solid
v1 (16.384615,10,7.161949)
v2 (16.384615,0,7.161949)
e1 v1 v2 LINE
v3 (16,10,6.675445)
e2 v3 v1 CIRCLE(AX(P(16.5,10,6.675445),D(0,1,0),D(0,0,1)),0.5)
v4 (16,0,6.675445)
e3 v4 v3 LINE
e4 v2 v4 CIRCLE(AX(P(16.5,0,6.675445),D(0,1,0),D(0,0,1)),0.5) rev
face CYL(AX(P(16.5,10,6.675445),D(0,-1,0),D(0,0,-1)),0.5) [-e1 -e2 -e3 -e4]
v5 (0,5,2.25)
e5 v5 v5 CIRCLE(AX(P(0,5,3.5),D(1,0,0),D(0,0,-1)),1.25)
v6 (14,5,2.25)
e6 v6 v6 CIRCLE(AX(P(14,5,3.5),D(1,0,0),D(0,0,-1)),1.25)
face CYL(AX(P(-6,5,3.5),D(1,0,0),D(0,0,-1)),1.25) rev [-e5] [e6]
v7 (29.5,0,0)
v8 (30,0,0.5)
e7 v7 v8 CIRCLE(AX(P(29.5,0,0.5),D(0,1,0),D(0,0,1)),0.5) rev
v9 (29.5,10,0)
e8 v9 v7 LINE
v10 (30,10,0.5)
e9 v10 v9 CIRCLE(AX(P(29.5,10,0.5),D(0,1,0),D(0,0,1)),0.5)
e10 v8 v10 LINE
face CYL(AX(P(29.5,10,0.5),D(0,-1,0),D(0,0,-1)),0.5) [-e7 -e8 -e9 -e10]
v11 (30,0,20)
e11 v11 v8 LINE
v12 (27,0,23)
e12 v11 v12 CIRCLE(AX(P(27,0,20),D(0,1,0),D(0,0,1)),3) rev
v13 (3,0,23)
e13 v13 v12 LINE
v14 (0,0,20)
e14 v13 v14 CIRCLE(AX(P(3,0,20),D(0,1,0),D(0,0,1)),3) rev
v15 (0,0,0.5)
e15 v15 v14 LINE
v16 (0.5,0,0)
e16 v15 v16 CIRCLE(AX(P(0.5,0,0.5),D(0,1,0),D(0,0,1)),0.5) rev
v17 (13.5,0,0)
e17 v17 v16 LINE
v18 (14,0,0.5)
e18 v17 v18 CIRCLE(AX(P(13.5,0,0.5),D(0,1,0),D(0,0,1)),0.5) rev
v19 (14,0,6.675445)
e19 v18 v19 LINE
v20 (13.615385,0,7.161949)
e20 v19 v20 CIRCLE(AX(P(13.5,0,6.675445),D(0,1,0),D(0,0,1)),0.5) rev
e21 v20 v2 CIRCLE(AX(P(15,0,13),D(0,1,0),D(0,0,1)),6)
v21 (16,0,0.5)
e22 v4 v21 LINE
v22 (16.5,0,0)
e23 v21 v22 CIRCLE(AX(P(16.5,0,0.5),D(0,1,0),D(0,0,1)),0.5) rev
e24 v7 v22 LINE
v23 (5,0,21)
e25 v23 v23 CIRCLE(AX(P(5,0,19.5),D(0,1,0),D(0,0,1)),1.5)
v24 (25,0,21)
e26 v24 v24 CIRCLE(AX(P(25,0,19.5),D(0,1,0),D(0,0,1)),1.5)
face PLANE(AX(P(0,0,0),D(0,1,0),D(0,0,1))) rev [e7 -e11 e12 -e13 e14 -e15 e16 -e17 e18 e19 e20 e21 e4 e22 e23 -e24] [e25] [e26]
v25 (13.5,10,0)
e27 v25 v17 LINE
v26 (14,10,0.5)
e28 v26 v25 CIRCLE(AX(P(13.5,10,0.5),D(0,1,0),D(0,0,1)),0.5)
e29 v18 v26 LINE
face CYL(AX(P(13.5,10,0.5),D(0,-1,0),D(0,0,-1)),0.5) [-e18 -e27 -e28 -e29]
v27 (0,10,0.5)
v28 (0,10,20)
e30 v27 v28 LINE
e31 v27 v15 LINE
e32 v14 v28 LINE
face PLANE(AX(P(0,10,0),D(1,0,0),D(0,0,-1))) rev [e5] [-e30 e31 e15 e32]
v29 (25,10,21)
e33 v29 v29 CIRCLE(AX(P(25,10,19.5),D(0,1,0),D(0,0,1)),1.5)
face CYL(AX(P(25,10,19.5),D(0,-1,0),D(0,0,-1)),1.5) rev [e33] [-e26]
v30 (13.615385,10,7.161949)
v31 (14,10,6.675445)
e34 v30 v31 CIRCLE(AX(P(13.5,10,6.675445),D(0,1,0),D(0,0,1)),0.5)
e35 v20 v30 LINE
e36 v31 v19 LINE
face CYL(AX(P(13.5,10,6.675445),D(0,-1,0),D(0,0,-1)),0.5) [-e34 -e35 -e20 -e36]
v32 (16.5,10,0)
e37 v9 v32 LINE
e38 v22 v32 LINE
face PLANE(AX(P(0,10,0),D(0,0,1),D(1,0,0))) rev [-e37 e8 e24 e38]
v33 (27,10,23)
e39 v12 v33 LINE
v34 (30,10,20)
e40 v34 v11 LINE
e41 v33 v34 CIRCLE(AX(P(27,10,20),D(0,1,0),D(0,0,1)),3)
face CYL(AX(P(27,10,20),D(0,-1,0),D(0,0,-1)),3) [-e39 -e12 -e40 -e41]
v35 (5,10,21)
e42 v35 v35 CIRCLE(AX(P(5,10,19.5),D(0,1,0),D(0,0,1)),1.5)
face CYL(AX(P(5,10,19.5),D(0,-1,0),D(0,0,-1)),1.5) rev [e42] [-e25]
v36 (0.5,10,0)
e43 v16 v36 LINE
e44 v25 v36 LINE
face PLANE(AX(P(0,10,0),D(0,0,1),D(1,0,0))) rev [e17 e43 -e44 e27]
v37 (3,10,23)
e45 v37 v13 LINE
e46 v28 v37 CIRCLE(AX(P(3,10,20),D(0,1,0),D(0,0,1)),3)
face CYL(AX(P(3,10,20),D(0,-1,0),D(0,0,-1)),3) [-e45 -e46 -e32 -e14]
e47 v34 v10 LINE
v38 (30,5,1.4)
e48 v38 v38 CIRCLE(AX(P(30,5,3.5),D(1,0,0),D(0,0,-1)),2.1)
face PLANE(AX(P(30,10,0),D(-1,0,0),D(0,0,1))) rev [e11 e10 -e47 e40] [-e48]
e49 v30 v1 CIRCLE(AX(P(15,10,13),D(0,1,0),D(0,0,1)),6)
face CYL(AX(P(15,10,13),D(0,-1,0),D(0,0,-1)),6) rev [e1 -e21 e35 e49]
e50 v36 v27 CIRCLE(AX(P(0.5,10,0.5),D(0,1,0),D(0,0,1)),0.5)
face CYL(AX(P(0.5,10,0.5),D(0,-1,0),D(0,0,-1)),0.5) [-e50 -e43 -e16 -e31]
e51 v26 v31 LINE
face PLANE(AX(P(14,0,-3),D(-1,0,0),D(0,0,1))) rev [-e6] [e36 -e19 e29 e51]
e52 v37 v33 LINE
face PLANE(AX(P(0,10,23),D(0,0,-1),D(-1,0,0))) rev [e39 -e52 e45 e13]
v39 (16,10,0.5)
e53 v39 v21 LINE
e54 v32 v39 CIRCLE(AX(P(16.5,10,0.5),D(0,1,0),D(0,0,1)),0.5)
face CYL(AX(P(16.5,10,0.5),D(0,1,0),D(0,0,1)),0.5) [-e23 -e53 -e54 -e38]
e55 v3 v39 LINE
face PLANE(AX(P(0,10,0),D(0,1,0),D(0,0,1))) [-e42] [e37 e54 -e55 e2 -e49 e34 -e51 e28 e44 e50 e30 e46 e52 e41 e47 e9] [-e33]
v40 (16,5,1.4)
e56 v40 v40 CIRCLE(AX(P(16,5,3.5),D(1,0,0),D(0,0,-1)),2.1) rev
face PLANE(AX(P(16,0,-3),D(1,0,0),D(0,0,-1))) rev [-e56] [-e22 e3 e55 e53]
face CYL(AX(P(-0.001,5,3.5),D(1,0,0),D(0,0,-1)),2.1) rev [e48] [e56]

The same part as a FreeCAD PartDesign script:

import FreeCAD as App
import Part
import Sketcher

V = App.Vector
Q = App.Units.Quantity


def edges_at(feature, points):
    """Names of the edges that pass closest to the given points."""
    edges = feature.Shape.Edges
    near = lambda p: min(range(len(edges)), key=lambda i: edges[i].distToShape(Part.Vertex(*p))[0])
    return sorted({f"Edge{near(p) + 1}" for p in points})

doc = App.newDocument("Part")
body = doc.addObject("PartDesign::Body", "Body")

sketch1 = doc.addObject("Sketcher::SketchObject", "Sketch")
body.addObject(sketch1)
sketch1.AttachmentSupport = (doc.XZ_Plane, [""])
sketch1.MapMode = "FlatFace"
sketch1.addGeometry([
    Part.LineSegment(V(0, 0, 0), V(0, 23, 0)),
    Part.LineSegment(V(0, 23, 0), V(30, 23, 0)),
    Part.LineSegment(V(30, 23, 0), V(30, 0, 0)),
    Part.LineSegment(V(30, 0, 0), V(0, 0, 0)),
    Part.Circle(V(5, 19.5, 0), V(0, 0, 1), 1.5),
    Part.Circle(V(25, 19.5, 0), V(0, 0, 1), 1.5),
    Part.Circle(V(15, 13, 0), V(0, 0, 1), 6),
], False)
sketch1.addConstraint([
    Sketcher.Constraint("Coincident", 0, 2, 1, 1),
    Sketcher.Constraint("Coincident", 1, 2, 2, 1),
    Sketcher.Constraint("Coincident", 2, 2, 3, 1),
    Sketcher.Constraint("Coincident", 3, 2, 0, 1),
    Sketcher.Constraint("Vertical", 0),
    Sketcher.Constraint("Horizontal", 1),
    Sketcher.Constraint("Vertical", 2),
    Sketcher.Constraint("Horizontal", 3),
    Sketcher.Constraint("Coincident", 3, 2, -1, 1),
    Sketcher.Constraint("Equal", 4, 5),
    Sketcher.Constraint("Horizontal", 4, 3, 5, 3),
    Sketcher.Constraint("Diameter", 4, Q("3 mm")),
    Sketcher.Constraint("Diameter", 6, Q("12 mm")),
    Sketcher.Constraint("DistanceX", 1, 1, 1, 2, Q("30 mm")),
    Sketcher.Constraint("DistanceY", 0, 1, 0, 2, Q("23 mm")),
    Sketcher.Constraint("DistanceX", -1, 1, 4, 3, Q("5 mm")),
    Sketcher.Constraint("DistanceX", -1, 1, 5, 3, Q("25 mm")),
    Sketcher.Constraint("DistanceX", -1, 1, 6, 3, Q("15 mm")),
    Sketcher.Constraint("DistanceY", -1, 1, 6, 3, Q("13 mm")),
    Sketcher.Constraint("DistanceY", -1, 1, 4, 3, Q("19.5 mm")),
])
pad1 = doc.addObject("PartDesign::Pad", "Pad")
body.addObject(pad1)
pad1.Profile = sketch1
pad1.Length = 10
pad1.Reversed = True

sketch2 = doc.addObject("Sketcher::SketchObject", "Sketch001")
body.addObject(sketch2)
sketch2.AttachmentSupport = (doc.XZ_Plane, [""])
sketch2.MapMode = "FlatFace"
sketch2.AttachmentOffset = App.Placement(V(0, 0, -10), App.Rotation())
sketch2.addGeometry([
    Part.LineSegment(V(14, -3, 0), V(14, 12, 0)),
    Part.LineSegment(V(14, 12, 0), V(16, 12, 0)),
    Part.LineSegment(V(16, 12, 0), V(16, -3, 0)),
    Part.LineSegment(V(16, -3, 0), V(14, -3, 0)),
], False)
sketch2.addConstraint([
    Sketcher.Constraint("Coincident", 0, 2, 1, 1),
    Sketcher.Constraint("Coincident", 1, 2, 2, 1),
    Sketcher.Constraint("Coincident", 2, 2, 3, 1),
    Sketcher.Constraint("Coincident", 3, 2, 0, 1),
    Sketcher.Constraint("Vertical", 0),
    Sketcher.Constraint("Horizontal", 1),
    Sketcher.Constraint("Vertical", 2),
    Sketcher.Constraint("Horizontal", 3),
    Sketcher.Constraint("DistanceX", 1, 1, 1, 2, Q("2 mm")),
    Sketcher.Constraint("DistanceY", 0, 1, 0, 2, Q("15 mm")),
    Sketcher.Constraint("DistanceX", -1, 1, 0, 2, Q("14 mm")),
    Sketcher.Constraint("DistanceY", -1, 1, 0, 2, Q("12 mm")),
])
pocket1 = doc.addObject("PartDesign::Pocket", "Pocket")
body.addObject(pocket1)
pocket1.Profile = sketch2
pocket1.Length = 10
pocket1.Reversed = True

sketch3 = doc.addObject("Sketcher::SketchObject", "Sketch002")
body.addObject(sketch3)
sketch3.AttachmentSupport = (doc.YZ_Plane, [""])
sketch3.MapMode = "FlatFace"
sketch3.AttachmentOffset = App.Placement(V(0, 0, 30), App.Rotation())
sketch3.addGeometry(Part.Circle(V(5, 3.5, 0), V(0, 0, 1), 2.1), False)
sketch3.addConstraint([
    Sketcher.Constraint("Diameter", 0, Q("4.2 mm")),
    Sketcher.Constraint("DistanceX", -1, 1, 0, 3, Q("5 mm")),
    Sketcher.Constraint("DistanceY", -1, 1, 0, 3, Q("3.5 mm")),
])
pocket2 = doc.addObject("PartDesign::Pocket", "Pocket001")
body.addObject(pocket2)
pocket2.Profile = sketch3
pocket2.Type = "UpToFirst"

sketch4 = doc.addObject("Sketcher::SketchObject", "Sketch003")
body.addObject(sketch4)
sketch4.AttachmentSupport = (doc.YZ_Plane, [""])
sketch4.MapMode = "FlatFace"
sketch4.AttachmentOffset = App.Placement(V(0, 0, 14), App.Rotation())
sketch4.addGeometry(Part.Circle(V(5, 3.5, 0), V(0, 0, 1), 1.2), False)
sketch4.addConstraint([
    Sketcher.Constraint("Diameter", 0, Q("2.5 mm")),
    Sketcher.Constraint("DistanceX", -1, 1, 0, 3, Q("5 mm")),
    Sketcher.Constraint("DistanceY", -1, 1, 0, 3, Q("3.5 mm")),
])
pocket3 = doc.addObject("PartDesign::Pocket", "Pocket002")
body.addObject(pocket3)
pocket3.Profile = sketch4
pocket3.Length = 20
doc.recompute()

fillet = doc.addObject("PartDesign::Fillet", "Fillet")
body.addObject(fillet)
fillet.Base = (pocket3, edges_at(pocket3, [(30, 5, 23), (0, 5, 23)]))
fillet.Radius = 3
doc.recompute()

fillet2 = doc.addObject("PartDesign::Fillet", "Fillet001")
body.addObject(fillet2)
fillet2.Base = (fillet, edges_at(fillet, [
    (14, 5, 7.084),
    (16, 5, 7.084),
    (16, 5, 0),
    (14, 5, 0),
    (0, 5, 0),
    (30, 5, 0),
]))
fillet2.Radius = 0.5

doc.recompute()
